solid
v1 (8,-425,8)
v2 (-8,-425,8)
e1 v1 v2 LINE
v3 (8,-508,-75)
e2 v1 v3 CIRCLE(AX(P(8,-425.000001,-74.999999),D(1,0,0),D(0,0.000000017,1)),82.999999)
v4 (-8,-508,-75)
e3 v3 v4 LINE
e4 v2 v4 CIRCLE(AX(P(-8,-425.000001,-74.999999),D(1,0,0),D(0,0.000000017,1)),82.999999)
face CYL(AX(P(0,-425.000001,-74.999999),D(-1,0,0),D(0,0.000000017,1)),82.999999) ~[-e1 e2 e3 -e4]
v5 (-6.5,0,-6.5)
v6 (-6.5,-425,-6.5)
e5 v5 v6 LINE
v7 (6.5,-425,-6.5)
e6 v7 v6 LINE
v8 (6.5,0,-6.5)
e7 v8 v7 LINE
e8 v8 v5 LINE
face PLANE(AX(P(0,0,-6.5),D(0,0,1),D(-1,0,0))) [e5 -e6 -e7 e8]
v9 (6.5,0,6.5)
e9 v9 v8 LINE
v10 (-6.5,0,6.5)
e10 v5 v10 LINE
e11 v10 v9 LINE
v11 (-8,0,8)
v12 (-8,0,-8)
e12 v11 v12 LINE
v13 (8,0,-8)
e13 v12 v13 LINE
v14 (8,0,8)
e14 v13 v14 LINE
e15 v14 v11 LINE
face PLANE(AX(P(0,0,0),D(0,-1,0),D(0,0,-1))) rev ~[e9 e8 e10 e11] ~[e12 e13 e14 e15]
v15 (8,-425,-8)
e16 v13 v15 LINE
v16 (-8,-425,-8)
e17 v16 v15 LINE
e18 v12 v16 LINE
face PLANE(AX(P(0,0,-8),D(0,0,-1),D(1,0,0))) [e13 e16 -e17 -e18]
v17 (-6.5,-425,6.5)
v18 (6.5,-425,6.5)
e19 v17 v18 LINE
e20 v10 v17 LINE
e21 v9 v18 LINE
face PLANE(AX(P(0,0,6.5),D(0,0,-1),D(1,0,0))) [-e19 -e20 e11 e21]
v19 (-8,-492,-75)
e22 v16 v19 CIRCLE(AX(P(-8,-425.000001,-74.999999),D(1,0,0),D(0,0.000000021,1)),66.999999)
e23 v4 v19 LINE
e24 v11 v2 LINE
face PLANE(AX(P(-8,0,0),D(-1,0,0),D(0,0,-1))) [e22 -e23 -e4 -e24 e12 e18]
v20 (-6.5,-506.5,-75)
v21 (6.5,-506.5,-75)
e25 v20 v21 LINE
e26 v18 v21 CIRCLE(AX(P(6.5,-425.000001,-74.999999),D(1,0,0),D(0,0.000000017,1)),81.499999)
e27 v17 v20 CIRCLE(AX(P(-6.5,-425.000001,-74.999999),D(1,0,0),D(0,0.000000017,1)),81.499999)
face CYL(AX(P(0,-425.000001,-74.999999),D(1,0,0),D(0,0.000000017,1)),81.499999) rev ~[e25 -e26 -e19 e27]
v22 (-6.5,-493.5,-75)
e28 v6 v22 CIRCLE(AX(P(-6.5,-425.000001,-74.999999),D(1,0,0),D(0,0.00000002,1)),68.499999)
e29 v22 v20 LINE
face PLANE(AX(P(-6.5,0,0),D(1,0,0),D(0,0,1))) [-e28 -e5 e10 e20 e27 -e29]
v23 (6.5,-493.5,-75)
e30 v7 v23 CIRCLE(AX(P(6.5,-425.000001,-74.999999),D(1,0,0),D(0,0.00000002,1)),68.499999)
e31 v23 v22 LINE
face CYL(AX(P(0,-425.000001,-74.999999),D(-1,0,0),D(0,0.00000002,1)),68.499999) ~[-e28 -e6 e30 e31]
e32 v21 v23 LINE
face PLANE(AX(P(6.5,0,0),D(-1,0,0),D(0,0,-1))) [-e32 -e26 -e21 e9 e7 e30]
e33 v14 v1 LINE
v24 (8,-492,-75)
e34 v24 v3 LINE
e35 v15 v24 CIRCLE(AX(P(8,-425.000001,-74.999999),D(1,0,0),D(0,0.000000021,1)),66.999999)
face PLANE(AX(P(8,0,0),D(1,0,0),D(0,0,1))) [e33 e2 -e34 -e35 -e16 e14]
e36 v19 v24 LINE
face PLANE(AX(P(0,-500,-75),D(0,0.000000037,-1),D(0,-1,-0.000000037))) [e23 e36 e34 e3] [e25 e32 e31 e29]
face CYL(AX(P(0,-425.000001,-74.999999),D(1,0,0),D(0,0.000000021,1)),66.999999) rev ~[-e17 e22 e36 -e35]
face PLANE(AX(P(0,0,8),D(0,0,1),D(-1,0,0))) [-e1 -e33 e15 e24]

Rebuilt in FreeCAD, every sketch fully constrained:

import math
import FreeCAD as App
import Part
import Sketcher


def add_polygon(sketch, points):
    """Adds a closed chain of lines whose ends are joined by coincident constraints."""
    first, n = sketch.GeometryCount, len(points)
    for a, b in zip(points, points[1:] + points[:1]):
        sketch.addGeometry(Part.LineSegment(App.Vector(*a, 0), App.Vector(*b, 0)), False)
    for i in range(n):
        sketch.addConstraint(Sketcher.Constraint("Coincident", first + i, 2, first + (i + 1) % n, 1))

doc = App.newDocument("Part")
body = doc.addObject("PartDesign::Body", "Body")

# Sketch on XZ plane
sketch1 = body.newObject("Sketcher::SketchObject", "Sketch")
sketch1.AttachmentSupport = (doc.getObject("XZ_Plane"), [""])
sketch1.MapMode = "FlatFace"
add_polygon(sketch1, [(-8, 8), (-8, -8), (8, -8), (8, 8)])  # lines 0-3
add_polygon(sketch1, [(6.5, -6.5), (-6.5, -6.5), (-6.5, 6.5), (6.5, 6.5)])  # lines 4-7
sketch1.addConstraint(Sketcher.Constraint("Vertical", 0))
sketch1.addConstraint(Sketcher.Constraint("Horizontal", 1))
sketch1.addConstraint(Sketcher.Constraint("Vertical", 2))
sketch1.addConstraint(Sketcher.Constraint("Horizontal", 3))
sketch1.addConstraint(Sketcher.Constraint("Horizontal", 4))
sketch1.addConstraint(Sketcher.Constraint("Vertical", 5))
sketch1.addConstraint(Sketcher.Constraint("Horizontal", 6))
sketch1.addConstraint(Sketcher.Constraint("Vertical", 7))
sketch1.addConstraint(Sketcher.Constraint("Symmetric", 0, 2, 2, 2, -1, 1))
sketch1.addConstraint(Sketcher.Constraint("Symmetric", 4, 2, 6, 2, -1, 1))
sketch1.addConstraint(Sketcher.Constraint("Equal", 3, 0))
sketch1.addConstraint(Sketcher.Constraint("Equal", 6, 5))
sketch1.addConstraint(Sketcher.Constraint("DistanceX", 1, 1, 1, 2, 16.0))
sketch1.addConstraint(Sketcher.Constraint("DistanceX", 4, 2, 4, 1, 13.0))

# Sketch on YZ plane
sketch2 = body.newObject("Sketcher::SketchObject", "Sketch001")
sketch2.AttachmentSupport = (doc.getObject("YZ_Plane"), [""])
sketch2.MapMode = "FlatFace"
sketch2.addGeometry(Part.LineSegment(App.Vector(0, 0, 0), App.Vector(-425, 0, 0)), False)
sketch2.addGeometry(Part.ArcOfCircle(Part.Circle(App.Vector(-425.000001, -74.999999, 0), App.Vector(0, 0, 1), 74.999999), math.radians(89.999999), math.radians(180.000001)), False)
sketch2.addConstraint(Sketcher.Constraint("Tangent", 0, 2, 1, 1))
sketch2.addConstraint(Sketcher.Constraint("Horizontal", 0))
sketch2.addConstraint(Sketcher.Constraint("Coincident", 0, 1, -1, 1))
sketch2.addConstraint(Sketcher.Constraint("Radius", 1, 74.999999))
sketch2.addConstraint(Sketcher.Constraint("DistanceX", 0, 2, 0, 1, 425.0))
sketch2.addConstraint(Sketcher.Constraint("DistanceY", 1, 2, -1, 1, 75.0))
doc.recompute()

additivepipe = body.newObject("PartDesign::AdditivePipe", "AdditivePipe")
additivepipe.Profile = sketch1
additivepipe.Spine = (sketch2, ["Edge1", "Edge2"])

doc.recompute()
